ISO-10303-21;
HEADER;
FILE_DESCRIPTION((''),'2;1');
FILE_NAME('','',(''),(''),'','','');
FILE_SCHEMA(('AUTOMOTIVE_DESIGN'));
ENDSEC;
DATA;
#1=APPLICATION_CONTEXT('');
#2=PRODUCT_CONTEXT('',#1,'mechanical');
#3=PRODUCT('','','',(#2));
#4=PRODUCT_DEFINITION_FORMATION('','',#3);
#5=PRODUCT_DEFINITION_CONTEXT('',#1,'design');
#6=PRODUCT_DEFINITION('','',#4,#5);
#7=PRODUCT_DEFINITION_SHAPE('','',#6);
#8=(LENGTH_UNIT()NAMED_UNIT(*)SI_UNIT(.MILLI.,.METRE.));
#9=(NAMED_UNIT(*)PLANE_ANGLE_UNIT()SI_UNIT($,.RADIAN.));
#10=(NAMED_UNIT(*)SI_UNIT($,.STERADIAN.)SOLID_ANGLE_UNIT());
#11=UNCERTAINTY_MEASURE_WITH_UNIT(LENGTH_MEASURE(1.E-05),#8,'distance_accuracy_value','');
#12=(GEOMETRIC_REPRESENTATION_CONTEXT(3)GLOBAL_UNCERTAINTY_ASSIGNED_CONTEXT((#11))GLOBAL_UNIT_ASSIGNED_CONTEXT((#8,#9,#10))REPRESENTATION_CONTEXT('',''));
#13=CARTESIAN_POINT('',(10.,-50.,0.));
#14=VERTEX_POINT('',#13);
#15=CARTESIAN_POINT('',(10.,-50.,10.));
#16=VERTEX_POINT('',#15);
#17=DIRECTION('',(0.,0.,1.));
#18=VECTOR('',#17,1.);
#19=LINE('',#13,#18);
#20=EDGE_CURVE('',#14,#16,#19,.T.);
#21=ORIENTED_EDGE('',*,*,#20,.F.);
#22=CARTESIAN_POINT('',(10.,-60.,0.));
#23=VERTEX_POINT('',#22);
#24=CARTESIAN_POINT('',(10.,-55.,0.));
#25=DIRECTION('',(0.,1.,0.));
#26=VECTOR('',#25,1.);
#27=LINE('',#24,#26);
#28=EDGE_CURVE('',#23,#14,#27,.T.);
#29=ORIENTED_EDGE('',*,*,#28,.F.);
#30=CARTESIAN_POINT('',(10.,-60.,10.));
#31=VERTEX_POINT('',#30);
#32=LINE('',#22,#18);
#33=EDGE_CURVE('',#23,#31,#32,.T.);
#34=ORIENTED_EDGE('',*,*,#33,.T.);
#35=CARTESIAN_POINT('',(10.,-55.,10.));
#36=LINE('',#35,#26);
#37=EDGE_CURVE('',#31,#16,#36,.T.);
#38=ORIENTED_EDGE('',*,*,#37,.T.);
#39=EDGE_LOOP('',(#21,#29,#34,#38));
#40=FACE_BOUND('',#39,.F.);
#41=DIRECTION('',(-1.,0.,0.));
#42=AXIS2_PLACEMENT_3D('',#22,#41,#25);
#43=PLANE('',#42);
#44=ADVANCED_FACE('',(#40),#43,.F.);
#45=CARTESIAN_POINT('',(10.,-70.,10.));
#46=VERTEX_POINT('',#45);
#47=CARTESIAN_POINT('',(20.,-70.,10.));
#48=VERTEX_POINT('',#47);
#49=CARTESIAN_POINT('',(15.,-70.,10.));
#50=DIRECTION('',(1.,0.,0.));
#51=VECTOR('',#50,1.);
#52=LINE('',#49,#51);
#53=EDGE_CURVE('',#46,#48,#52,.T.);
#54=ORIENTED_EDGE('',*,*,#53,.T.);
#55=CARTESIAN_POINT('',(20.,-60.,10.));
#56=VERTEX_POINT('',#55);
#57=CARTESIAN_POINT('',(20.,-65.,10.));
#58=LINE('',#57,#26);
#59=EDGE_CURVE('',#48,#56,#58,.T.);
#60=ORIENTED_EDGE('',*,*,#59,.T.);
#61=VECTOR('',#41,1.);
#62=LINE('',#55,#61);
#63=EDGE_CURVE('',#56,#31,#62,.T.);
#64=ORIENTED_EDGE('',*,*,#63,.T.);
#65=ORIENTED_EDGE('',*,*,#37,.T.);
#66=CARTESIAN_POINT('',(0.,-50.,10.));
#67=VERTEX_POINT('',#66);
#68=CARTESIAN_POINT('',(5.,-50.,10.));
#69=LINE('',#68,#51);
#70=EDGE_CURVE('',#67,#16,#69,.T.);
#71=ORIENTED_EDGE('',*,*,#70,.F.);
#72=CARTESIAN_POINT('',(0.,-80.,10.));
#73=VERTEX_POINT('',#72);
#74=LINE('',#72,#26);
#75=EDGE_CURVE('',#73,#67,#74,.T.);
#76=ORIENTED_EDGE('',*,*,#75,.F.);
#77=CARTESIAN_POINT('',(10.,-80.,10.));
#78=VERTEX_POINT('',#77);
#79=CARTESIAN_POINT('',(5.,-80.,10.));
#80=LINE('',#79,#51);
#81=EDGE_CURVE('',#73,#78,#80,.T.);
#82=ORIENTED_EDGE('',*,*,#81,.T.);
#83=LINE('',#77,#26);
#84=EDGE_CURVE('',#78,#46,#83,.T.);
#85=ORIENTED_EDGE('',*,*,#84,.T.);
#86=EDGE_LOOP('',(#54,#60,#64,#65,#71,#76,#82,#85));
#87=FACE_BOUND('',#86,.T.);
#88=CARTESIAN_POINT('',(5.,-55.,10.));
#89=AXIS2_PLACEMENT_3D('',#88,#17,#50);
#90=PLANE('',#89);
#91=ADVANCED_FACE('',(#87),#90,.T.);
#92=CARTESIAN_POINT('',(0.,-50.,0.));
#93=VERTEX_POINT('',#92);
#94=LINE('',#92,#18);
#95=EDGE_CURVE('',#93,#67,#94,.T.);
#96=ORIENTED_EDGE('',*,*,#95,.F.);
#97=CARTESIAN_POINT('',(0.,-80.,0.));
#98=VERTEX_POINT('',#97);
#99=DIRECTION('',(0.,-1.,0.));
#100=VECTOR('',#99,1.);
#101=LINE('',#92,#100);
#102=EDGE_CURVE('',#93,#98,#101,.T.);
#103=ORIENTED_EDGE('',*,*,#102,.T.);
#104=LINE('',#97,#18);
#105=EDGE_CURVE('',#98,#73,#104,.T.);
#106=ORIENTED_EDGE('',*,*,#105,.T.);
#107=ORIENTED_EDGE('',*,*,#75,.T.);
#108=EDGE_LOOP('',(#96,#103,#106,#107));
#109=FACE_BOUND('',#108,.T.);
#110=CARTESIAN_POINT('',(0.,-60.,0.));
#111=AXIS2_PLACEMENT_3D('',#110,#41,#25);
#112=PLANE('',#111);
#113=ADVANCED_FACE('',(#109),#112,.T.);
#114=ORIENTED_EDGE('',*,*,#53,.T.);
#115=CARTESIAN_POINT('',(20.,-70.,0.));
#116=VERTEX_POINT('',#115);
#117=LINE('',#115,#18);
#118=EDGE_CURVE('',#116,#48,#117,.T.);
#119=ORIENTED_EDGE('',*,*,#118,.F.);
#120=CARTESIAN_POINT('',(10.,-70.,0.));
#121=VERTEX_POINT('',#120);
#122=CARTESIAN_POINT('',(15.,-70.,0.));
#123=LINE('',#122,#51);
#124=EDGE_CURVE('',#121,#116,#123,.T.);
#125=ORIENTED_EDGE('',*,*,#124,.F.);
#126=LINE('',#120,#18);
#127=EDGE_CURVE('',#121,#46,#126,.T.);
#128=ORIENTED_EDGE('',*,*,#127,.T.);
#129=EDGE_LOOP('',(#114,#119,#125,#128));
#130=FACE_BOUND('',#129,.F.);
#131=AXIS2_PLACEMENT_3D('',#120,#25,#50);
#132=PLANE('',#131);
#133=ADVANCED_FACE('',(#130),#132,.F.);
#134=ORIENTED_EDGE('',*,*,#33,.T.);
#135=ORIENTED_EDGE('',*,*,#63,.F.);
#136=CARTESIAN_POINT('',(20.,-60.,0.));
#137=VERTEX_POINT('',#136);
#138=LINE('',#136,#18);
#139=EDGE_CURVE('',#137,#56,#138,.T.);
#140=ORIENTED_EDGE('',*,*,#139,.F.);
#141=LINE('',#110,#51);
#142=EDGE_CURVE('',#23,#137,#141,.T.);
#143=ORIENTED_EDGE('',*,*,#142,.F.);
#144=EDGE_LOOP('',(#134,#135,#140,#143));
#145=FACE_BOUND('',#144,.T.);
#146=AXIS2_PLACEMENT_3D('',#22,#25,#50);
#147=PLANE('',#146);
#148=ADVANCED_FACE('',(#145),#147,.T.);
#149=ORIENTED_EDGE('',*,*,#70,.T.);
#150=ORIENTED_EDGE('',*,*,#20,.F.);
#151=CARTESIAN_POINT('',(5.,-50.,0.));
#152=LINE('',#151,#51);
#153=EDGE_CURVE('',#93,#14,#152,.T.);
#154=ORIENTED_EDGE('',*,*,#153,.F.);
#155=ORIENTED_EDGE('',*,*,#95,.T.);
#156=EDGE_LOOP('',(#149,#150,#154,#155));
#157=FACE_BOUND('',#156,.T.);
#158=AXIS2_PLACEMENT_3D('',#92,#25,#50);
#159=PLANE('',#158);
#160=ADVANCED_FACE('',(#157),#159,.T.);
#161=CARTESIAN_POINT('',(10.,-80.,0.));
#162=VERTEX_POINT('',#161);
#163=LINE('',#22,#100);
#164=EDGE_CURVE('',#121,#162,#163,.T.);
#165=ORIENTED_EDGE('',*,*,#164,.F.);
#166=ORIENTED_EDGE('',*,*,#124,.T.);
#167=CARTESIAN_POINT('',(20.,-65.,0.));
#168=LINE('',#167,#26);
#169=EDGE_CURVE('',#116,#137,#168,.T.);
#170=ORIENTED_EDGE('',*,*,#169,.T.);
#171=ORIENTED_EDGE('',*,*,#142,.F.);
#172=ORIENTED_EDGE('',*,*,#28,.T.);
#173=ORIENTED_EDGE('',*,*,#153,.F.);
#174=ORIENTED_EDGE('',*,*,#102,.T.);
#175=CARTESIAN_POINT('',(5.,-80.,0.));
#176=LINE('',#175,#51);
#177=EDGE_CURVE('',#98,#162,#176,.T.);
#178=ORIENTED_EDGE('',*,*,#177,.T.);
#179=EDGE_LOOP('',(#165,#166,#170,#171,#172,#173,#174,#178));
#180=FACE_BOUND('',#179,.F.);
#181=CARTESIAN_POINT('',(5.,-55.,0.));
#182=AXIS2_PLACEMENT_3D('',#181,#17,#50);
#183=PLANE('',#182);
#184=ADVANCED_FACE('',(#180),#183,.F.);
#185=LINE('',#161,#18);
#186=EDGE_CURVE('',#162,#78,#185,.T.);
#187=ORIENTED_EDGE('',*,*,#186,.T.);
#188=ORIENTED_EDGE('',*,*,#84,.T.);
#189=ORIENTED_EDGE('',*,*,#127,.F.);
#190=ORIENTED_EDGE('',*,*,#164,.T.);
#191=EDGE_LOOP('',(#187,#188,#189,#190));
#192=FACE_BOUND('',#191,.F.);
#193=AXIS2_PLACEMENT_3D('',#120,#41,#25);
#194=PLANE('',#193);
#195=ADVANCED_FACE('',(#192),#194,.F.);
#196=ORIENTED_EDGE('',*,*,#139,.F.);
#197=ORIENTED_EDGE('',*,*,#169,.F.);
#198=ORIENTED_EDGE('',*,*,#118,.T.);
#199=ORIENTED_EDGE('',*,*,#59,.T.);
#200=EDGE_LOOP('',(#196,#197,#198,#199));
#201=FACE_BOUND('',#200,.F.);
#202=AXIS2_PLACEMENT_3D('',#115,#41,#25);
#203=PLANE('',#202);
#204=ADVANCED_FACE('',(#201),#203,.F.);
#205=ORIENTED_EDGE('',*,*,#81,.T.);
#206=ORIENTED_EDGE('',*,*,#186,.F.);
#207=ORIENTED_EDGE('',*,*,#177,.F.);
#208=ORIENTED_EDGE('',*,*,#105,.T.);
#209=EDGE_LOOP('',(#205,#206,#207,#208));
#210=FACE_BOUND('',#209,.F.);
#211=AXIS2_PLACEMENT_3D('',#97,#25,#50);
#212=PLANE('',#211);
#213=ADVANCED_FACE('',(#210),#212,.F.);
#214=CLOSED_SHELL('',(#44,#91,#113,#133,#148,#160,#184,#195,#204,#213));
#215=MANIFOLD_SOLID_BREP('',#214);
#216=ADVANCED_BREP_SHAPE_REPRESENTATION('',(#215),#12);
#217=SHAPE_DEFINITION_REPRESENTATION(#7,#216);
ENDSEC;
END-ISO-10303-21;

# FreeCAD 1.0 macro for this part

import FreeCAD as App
import Part
import Sketcher
from FreeCAD import Vector

doc = App.newDocument("Part")
body = doc.addObject("PartDesign::Body", "Body")

# Sketch on XY plane
sketch1 = body.newObject("Sketcher::SketchObject", "Sketch")
sketch1.AttachmentSupport = (doc.getObject("XY_Plane"), [""])
sketch1.MapMode = "FlatFace"
sketch1.addGeometry(Part.LineSegment(Vector(0, 20, 0), Vector(0, 10, 0)), False)
sketch1.addGeometry(Part.LineSegment(Vector(0, 10, 0), Vector(10, 10, 0)), False)
sketch1.addGeometry(Part.LineSegment(Vector(10, 10, 0), Vector(10, 20, 0)), False)
sketch1.addGeometry(Part.LineSegment(Vector(10, 20, 0), Vector(0, 20, 0)), False)
sketch1.addConstraint(Sketcher.Constraint("Coincident", 0, 2, 1, 1))
sketch1.addConstraint(Sketcher.Constraint("Coincident", 1, 2, 2, 1))
sketch1.addConstraint(Sketcher.Constraint("Coincident", 2, 2, 3, 1))
sketch1.addConstraint(Sketcher.Constraint("Coincident", 3, 2, 0, 1))
sketch1.addConstraint(Sketcher.Constraint("Vertical", 0))
sketch1.addConstraint(Sketcher.Constraint("Horizontal", 1))
sketch1.addConstraint(Sketcher.Constraint("Vertical", 2))
sketch1.addConstraint(Sketcher.Constraint("Horizontal", 3))
sketch1.addConstraint(Sketcher.Constraint("PointOnObject", 0, 2, -2))
sketch1.addConstraint(Sketcher.Constraint("Equal", 3, 0))
sketch1.addConstraint(Sketcher.Constraint("DistanceX", 1, 1, 1, 2, 10.0))
sketch1.addConstraint(Sketcher.Constraint("DistanceY", -1, 1, 0, 2, 10.0))
pad1 = body.newObject("PartDesign::Pad", "Pad")
pad1.Profile = sketch1
pad1.Length = 10
body2 = doc.addObject("PartDesign::Body", "Body001")

# Sketch on XY plane
sketch2 = body2.newObject("Sketcher::SketchObject", "Sketch001")
sketch2.AttachmentSupport = (doc.getObject("XY_Plane001"), [""])
sketch2.MapMode = "FlatFace"
sketch2.addGeometry(Part.LineSegment(Vector(10, 20, 0), Vector(10, 10, 0)), False)
sketch2.addGeometry(Part.LineSegment(Vector(10, 10, 0), Vector(20, 10, 0)), False)
sketch2.addGeometry(Part.LineSegment(Vector(20, 10, 0), Vector(20, 20, 0)), False)
sketch2.addGeometry(Part.LineSegment(Vector(20, 20, 0), Vector(10, 20, 0)), False)
sketch2.addConstraint(Sketcher.Constraint("Coincident", 0, 2, 1, 1))
sketch2.addConstraint(Sketcher.Constraint("Coincident", 1, 2, 2, 1))
sketch2.addConstraint(Sketcher.Constraint("Coincident", 2, 2, 3, 1))
sketch2.addConstraint(Sketcher.Constraint("Coincident", 3, 2, 0, 1))
sketch2.addConstraint(Sketcher.Constraint("Vertical", 0))
sketch2.addConstraint(Sketcher.Constraint("Horizontal", 1))
sketch2.addConstraint(Sketcher.Constraint("Vertical", 2))
sketch2.addConstraint(Sketcher.Constraint("Horizontal", 3))
sketch2.addConstraint(Sketcher.Constraint("Equal", 3, 0))
sketch2.addConstraint(Sketcher.Constraint("DistanceX", 1, 1, 1, 2, 10.0))
sketch2.addConstraint(Sketcher.Constraint("DistanceX", -1, 1, 0, 2, 10.0))
sketch2.addConstraint(Sketcher.Constraint("DistanceY", -1, 1, 0, 2, 10.0))
pad2 = body2.newObject("PartDesign::Pad", "Pad001")
pad2.Profile = sketch2
pad2.Length = 10
body3 = doc.addObject("PartDesign::Body", "Body002")

# Sketch on XY plane
sketch3 = body3.newObject("Sketcher::SketchObject", "Sketch002")
sketch3.AttachmentSupport = (doc.getObject("XY_Plane002"), [""])
sketch3.MapMode = "FlatFace"
sketch3.addGeometry(Part.LineSegment(Vector(0, 30, 0), Vector(0, 20, 0)), False)
sketch3.addGeometry(Part.LineSegment(Vector(0, 20, 0), Vector(10, 20, 0)), False)
sketch3.addGeometry(Part.LineSegment(Vector(10, 20, 0), Vector(10, 30, 0)), False)
sketch3.addGeometry(Part.LineSegment(Vector(10, 30, 0), Vector(0, 30, 0)), False)
sketch3.addConstraint(Sketcher.Constraint("Coincident", 0, 2, 1, 1))
sketch3.addConstraint(Sketcher.Constraint("Coincident", 1, 2, 2, 1))
sketch3.addConstraint(Sketcher.Constraint("Coincident", 2, 2, 3, 1))
sketch3.addConstraint(Sketcher.Constraint("Coincident", 3, 2, 0, 1))
sketch3.addConstraint(Sketcher.Constraint("Vertical", 0))
sketch3.addConstraint(Sketcher.Constraint("Horizontal", 1))
sketch3.addConstraint(Sketcher.Constraint("Vertical", 2))
sketch3.addConstraint(Sketcher.Constraint("Horizontal", 3))
sketch3.addConstraint(Sketcher.Constraint("PointOnObject", 0, 2, -2))
sketch3.addConstraint(Sketcher.Constraint("Equal", 3, 0))
sketch3.addConstraint(Sketcher.Constraint("DistanceX", 1, 1, 1, 2, 10.0))
sketch3.addConstraint(Sketcher.Constraint("DistanceY", -1, 1, 0, 2, 20.0))
pad3 = body3.newObject("PartDesign::Pad", "Pad002")
pad3.Profile = sketch3
pad3.Length = 10
body4 = doc.addObject("PartDesign::Body", "Body003")

# Sketch on XY plane
sketch4 = body4.newObject("Sketcher::SketchObject", "Sketch003")
sketch4.AttachmentSupport = (doc.getObject("XY_Plane003"), [""])
sketch4.MapMode = "FlatFace"
sketch4.addGeometry(Part.LineSegment(Vector(0, 10, 0), Vector(0, 0, 0)), False)
sketch4.addGeometry(Part.LineSegment(Vector(0, 0, 0), Vector(10, 0, 0)), False)
sketch4.addGeometry(Part.LineSegment(Vector(10, 0, 0), Vector(10, 10, 0)), False)
sketch4.addGeometry(Part.LineSegment(Vector(10, 10, 0), Vector(0, 10, 0)), False)
sketch4.addConstraint(Sketcher.Constraint("Coincident", 0, 2, 1, 1))
sketch4.addConstraint(Sketcher.Constraint("Coincident", 1, 2, 2, 1))
sketch4.addConstraint(Sketcher.Constraint("Coincident", 2, 2, 3, 1))
sketch4.addConstraint(Sketcher.Constraint("Coincident", 3, 2, 0, 1))
sketch4.addConstraint(Sketcher.Constraint("Vertical", 0))
sketch4.addConstraint(Sketcher.Constraint("Horizontal", 1))
sketch4.addConstraint(Sketcher.Constraint("Vertical", 2))
sketch4.addConstraint(Sketcher.Constraint("Horizontal", 3))
sketch4.addConstraint(Sketcher.Constraint("Coincident", 0, 2, -1, 1))
sketch4.addConstraint(Sketcher.Constraint("Equal", 3, 0))
sketch4.addConstraint(Sketcher.Constraint("DistanceX", 1, 1, 1, 2, 10.0))
pad4 = body4.newObject("PartDesign::Pad", "Pad003")
pad4.Profile = sketch4
pad4.Length = 10
doc.recompute()

boolean = body4.newObject("PartDesign::Boolean", "Boolean")
boolean.Type = "Fuse"
boolean.addObjects([body])
doc.recompute()

boolean2 = body4.newObject("PartDesign::Boolean", "Boolean001")
boolean2.Type = "Fuse"
boolean2.addObjects([body2])
doc.recompute()

boolean3 = body4.newObject("PartDesign::Boolean", "Boolean002")
boolean3.Type = "Fuse"
boolean3.addObjects([body3])
body5 = doc.addObject("PartDesign::Body", "Body004")
doc.recompute()

body4.Placement = App.Placement(Vector(0, -80, 0), App.Rotation(Vector(0, 0, 1), 0))
boolean4 = body5.newObject("PartDesign::Boolean", "Boolean003")
boolean4.Type = "Fuse"
boolean4.addObjects([body4])

doc.recompute()
